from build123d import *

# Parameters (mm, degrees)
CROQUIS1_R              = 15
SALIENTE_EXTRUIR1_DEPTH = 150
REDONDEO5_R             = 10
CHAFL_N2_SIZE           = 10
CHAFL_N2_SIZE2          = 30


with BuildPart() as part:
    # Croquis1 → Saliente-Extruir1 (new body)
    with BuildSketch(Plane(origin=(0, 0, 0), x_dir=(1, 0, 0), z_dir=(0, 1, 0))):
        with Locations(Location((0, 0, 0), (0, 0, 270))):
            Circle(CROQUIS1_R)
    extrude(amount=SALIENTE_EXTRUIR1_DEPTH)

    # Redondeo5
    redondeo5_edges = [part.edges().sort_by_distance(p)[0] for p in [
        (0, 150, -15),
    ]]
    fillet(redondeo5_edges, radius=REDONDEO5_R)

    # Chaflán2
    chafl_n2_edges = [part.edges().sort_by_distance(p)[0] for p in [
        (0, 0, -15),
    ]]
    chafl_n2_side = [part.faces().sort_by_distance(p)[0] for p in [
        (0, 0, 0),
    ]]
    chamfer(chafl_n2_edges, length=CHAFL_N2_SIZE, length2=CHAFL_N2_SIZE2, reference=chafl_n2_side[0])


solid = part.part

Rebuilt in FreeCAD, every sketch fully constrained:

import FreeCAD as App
import Part
import Sketcher

V = App.Vector
Q = App.Units.Quantity


def edges_at(feature, points):
    """Names of the edges that pass closest to the given points."""
    edges = feature.Shape.Edges
    near = lambda p: min(range(len(edges)), key=lambda i: edges[i].distToShape(Part.Vertex(*p))[0])
    return sorted({f"Edge{near(p) + 1}" for p in points})

doc = App.newDocument("Part")
body = doc.addObject("PartDesign::Body", "Body")

sketch1 = body.newObject("Sketcher::SketchObject", "Sketch")
sketch1.AttachmentSupport = (doc.getObject("XZ_Plane"), [""])
sketch1.MapMode = "FlatFace"
sketch1.addGeometry(Part.Circle(V(0, 0, 0), V(0, 0, 1), 15), False)
sketch1.addConstraint([
    Sketcher.Constraint("Coincident", 0, 3, -1, 1),
    Sketcher.Constraint("Diameter", 0, Q("30 mm")),
])
pad1 = body.newObject("PartDesign::Pad", "Pad")
pad1.Profile = sketch1
pad1.Length = 150
pad1.Reversed = True
doc.recompute()

fillet = body.newObject("PartDesign::Fillet", "Fillet")
fillet.Base = (pad1, edges_at(pad1, [(0, 150, -15)]))
fillet.Radius = 10
doc.recompute()

chamfer = body.newObject("PartDesign::Chamfer", "Chamfer")
chamfer.Base = (fillet, edges_at(fillet, [(0, 0, -15)]))
chamfer.ChamferType = "Two distances"
chamfer.Size = 10
chamfer.Size2 = 30
chamfer.FlipDirection = True

doc.recompute()
